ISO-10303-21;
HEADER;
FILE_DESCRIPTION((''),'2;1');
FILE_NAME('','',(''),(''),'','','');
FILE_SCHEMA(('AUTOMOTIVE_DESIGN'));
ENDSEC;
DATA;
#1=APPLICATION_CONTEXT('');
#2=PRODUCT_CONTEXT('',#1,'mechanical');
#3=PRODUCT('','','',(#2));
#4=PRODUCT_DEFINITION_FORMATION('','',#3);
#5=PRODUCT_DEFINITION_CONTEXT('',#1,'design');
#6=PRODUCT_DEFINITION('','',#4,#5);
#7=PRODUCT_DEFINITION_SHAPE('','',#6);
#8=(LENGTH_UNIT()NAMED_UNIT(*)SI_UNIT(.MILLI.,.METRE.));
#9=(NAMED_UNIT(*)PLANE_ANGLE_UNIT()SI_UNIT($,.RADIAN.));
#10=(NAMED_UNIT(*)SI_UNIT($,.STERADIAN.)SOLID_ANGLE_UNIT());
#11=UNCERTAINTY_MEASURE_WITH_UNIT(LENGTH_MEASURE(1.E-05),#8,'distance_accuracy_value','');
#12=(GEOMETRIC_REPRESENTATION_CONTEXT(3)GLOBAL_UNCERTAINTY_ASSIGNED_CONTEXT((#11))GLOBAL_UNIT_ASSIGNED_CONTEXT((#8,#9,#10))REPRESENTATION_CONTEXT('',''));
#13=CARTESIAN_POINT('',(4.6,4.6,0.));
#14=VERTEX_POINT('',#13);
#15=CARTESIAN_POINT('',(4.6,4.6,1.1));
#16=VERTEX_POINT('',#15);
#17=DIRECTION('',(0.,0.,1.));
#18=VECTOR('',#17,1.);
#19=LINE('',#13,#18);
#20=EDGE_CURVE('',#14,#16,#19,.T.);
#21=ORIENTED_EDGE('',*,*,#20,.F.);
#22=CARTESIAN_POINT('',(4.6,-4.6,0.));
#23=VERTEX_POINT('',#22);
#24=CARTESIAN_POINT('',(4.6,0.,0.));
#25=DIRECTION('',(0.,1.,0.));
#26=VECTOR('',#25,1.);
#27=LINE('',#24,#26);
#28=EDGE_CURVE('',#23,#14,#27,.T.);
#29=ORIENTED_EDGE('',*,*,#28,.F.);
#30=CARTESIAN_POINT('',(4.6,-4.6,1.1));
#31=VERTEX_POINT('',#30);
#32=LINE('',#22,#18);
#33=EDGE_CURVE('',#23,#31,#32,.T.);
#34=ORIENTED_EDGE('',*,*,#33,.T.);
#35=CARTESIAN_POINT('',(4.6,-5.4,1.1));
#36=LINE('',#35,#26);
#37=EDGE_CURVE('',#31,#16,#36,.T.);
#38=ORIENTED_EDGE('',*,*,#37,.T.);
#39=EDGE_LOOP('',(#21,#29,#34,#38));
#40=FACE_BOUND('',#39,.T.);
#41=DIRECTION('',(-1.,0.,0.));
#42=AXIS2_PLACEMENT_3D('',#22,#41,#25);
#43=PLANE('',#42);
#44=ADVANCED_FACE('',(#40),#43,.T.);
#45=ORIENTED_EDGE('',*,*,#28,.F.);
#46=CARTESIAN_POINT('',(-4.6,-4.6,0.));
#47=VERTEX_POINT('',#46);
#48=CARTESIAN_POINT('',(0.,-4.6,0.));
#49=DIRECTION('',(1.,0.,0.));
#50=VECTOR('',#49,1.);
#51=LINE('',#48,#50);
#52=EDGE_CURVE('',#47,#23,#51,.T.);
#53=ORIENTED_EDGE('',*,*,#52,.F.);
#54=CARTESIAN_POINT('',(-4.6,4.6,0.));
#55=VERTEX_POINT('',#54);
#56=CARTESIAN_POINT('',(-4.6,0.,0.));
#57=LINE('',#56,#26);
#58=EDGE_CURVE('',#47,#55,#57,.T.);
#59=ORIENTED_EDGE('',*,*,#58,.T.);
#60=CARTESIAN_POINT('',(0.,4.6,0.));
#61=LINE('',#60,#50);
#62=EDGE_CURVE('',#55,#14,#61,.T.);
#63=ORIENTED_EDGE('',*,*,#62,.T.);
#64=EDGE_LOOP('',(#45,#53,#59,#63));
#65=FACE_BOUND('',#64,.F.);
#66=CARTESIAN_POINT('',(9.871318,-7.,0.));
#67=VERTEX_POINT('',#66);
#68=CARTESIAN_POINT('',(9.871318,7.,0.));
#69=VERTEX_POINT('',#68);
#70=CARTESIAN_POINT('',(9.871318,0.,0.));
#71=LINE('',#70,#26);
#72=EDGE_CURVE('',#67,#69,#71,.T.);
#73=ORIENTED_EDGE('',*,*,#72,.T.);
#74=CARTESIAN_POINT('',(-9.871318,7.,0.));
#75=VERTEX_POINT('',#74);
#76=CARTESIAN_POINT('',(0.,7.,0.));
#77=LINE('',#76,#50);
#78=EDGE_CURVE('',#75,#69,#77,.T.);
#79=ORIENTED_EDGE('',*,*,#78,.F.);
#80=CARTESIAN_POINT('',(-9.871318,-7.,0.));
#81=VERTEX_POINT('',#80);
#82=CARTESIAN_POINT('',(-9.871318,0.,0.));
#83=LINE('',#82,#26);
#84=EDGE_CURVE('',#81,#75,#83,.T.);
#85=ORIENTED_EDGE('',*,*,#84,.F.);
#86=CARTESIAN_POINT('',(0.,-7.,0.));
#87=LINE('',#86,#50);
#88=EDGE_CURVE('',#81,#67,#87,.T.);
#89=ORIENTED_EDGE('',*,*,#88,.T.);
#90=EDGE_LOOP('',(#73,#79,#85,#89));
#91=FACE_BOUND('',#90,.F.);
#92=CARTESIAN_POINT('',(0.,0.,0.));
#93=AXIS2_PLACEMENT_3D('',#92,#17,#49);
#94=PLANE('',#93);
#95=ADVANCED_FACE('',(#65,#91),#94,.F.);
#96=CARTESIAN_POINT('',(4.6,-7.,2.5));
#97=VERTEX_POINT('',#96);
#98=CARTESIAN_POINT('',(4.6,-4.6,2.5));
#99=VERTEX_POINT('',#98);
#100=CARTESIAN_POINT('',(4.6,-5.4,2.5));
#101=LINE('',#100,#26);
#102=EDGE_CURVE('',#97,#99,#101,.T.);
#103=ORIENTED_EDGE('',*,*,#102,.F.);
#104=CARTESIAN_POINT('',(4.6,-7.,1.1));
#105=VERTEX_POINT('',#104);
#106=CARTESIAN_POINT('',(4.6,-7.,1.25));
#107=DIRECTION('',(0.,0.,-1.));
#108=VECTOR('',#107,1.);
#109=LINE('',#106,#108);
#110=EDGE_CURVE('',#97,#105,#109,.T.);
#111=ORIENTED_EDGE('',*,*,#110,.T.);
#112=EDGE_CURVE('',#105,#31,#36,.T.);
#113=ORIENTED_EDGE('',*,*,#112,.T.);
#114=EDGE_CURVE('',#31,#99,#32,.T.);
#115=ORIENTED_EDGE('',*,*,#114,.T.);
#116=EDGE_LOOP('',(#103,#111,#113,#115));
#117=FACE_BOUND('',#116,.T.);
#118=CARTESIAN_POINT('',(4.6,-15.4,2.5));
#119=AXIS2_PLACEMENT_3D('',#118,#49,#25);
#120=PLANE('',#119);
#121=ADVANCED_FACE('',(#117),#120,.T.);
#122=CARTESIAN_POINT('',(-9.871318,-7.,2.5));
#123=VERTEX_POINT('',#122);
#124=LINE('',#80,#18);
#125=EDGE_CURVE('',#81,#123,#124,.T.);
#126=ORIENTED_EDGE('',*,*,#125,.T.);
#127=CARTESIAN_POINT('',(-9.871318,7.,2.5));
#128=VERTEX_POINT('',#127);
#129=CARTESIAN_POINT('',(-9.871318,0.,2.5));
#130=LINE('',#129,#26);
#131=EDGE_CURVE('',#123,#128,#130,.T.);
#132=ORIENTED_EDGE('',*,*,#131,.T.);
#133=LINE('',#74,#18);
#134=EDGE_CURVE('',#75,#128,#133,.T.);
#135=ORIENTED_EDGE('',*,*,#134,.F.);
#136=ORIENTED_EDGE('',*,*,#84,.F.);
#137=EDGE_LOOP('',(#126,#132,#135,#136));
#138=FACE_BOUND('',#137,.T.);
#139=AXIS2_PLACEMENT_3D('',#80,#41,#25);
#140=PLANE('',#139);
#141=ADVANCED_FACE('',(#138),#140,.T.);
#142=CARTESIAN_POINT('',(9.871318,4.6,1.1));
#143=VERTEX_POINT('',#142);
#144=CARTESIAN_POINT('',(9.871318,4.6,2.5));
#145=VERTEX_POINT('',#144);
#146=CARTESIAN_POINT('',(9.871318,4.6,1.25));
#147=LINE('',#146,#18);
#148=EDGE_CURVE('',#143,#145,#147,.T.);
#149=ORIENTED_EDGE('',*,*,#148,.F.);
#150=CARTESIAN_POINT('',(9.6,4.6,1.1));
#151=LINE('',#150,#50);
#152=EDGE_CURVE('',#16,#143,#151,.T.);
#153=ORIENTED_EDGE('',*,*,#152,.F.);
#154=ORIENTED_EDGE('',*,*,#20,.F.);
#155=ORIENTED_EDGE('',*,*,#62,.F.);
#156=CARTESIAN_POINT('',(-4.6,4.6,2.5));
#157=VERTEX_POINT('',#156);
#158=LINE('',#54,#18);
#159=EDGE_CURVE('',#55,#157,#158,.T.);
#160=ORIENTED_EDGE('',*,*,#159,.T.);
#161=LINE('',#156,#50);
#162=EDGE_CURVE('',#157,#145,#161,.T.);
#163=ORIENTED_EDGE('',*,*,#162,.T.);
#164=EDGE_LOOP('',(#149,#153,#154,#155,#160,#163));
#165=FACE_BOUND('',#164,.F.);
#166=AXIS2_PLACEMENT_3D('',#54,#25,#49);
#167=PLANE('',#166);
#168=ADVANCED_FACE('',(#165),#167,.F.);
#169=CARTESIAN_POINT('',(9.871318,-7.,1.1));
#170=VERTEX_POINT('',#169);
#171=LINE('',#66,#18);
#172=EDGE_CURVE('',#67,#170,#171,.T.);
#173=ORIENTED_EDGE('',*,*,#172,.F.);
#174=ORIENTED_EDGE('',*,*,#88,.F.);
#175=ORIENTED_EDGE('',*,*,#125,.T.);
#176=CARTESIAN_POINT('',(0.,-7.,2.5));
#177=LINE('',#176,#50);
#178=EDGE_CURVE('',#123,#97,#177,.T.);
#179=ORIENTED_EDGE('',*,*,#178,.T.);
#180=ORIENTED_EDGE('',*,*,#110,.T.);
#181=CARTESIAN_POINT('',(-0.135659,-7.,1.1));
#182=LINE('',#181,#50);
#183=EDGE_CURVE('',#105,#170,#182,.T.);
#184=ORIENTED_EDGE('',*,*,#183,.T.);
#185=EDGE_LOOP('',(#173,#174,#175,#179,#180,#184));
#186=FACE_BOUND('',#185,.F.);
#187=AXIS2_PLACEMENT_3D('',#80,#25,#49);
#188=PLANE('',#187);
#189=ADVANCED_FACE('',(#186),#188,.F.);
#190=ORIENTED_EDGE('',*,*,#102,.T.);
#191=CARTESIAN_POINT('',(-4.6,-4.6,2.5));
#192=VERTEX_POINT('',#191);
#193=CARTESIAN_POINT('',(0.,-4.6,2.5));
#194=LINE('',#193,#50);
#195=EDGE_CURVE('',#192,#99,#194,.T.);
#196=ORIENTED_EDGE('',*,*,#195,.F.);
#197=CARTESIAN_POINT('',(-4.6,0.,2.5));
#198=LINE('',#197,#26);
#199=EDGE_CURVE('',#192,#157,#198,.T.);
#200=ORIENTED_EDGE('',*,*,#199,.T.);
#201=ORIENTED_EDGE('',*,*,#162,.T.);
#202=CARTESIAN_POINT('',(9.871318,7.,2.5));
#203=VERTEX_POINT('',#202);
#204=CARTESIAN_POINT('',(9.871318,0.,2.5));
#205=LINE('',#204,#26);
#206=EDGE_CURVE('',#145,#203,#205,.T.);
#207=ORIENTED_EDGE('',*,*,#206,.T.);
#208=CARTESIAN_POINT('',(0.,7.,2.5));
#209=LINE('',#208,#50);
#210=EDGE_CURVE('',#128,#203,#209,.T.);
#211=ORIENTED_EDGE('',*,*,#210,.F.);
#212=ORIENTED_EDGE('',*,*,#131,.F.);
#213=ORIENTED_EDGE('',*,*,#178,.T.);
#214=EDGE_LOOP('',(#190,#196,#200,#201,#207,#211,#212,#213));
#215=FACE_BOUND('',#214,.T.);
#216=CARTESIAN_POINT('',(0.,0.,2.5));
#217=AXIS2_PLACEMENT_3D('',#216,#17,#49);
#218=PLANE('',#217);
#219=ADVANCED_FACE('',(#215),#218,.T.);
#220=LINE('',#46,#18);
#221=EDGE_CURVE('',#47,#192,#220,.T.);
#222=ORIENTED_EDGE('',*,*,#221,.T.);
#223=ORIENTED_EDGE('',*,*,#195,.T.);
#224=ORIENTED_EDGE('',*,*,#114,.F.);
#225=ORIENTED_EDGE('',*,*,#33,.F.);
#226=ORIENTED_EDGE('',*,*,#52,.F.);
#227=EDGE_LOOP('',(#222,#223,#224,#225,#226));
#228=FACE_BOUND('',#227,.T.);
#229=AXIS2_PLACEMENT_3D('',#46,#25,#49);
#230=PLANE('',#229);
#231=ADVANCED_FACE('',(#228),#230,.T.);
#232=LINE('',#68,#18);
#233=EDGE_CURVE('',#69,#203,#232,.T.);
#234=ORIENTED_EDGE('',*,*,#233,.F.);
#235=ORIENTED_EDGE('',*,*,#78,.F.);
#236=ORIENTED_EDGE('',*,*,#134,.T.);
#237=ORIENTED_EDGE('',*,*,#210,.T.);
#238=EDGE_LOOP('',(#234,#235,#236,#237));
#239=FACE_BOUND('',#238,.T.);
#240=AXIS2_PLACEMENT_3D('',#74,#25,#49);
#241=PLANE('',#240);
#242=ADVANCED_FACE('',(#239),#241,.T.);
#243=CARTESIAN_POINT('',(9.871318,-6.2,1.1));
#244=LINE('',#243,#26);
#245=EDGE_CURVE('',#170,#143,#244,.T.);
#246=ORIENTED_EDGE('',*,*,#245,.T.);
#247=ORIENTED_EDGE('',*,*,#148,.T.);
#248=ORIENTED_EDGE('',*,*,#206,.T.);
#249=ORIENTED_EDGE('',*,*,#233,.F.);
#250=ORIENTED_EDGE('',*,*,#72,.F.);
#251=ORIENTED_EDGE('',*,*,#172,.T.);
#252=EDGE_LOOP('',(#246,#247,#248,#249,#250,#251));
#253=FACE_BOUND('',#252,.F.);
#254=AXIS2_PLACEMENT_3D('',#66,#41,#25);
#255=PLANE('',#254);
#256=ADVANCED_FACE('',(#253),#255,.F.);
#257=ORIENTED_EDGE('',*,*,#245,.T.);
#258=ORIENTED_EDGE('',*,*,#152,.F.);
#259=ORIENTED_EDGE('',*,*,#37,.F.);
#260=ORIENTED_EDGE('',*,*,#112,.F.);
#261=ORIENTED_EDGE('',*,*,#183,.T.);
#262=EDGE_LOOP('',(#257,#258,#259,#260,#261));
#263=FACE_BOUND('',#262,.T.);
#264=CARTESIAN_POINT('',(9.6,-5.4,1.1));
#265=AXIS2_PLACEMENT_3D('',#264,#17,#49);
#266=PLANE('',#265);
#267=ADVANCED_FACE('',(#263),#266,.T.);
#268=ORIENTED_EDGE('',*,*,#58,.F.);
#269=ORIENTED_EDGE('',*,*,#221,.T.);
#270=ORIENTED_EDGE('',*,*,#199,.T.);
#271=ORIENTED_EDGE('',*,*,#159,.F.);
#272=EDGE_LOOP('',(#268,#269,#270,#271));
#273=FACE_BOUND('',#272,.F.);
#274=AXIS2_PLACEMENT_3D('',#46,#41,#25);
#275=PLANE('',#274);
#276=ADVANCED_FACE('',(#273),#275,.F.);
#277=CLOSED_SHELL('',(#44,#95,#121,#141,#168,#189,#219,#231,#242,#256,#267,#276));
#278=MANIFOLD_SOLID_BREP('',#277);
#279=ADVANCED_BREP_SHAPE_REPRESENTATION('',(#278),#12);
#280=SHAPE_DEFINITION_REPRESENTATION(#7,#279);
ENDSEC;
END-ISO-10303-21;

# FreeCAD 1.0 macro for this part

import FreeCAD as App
import Part
import Sketcher
from FreeCAD import Vector


def add_polygon(sketch, points):
    """Adds a closed chain of lines whose ends are joined by coincident constraints."""
    first, n = sketch.GeometryCount, len(points)
    for a, b in zip(points, points[1:] + points[:1]):
        sketch.addGeometry(Part.LineSegment(App.Vector(*a, 0), App.Vector(*b, 0)), False)
    for i in range(n):
        sketch.addConstraint(Sketcher.Constraint("Coincident", first + i, 2, first + (i + 1) % n, 1))

doc = App.newDocument("Part")
body = doc.addObject("PartDesign::Body", "Body")

# Sketch on XY plane
sketch1 = doc.addObject("Sketcher::SketchObject", "Sketch")
body.addObject(sketch1)
sketch1.AttachmentSupport = (doc.XY_Plane, [""])
sketch1.MapMode = "FlatFace"
add_polygon(sketch1, [(-10, 7), (-10, -7), (10, -7), (10, 7)])  # lines 0-3
add_polygon(sketch1, [(5, -5), (-5, -5), (-5, 5), (5, 5)])  # lines 4-7
sketch1.addConstraint([
    Sketcher.Constraint("Vertical", 0),
    Sketcher.Constraint("Horizontal", 1),
    Sketcher.Constraint("Vertical", 2),
    Sketcher.Constraint("Horizontal", 3),
    Sketcher.Constraint("Horizontal", 4),
    Sketcher.Constraint("Vertical", 5),
    Sketcher.Constraint("Horizontal", 6),
    Sketcher.Constraint("Vertical", 7),
    Sketcher.Constraint("Symmetric", 0, 2, 2, 2, -1, 1),
    Sketcher.Constraint("Symmetric", 4, 2, 6, 2, -1, 1),
    Sketcher.Constraint("Equal", 6, 5),
    Sketcher.Constraint("DistanceY", 0, 2, 0, 1, 14.0),
    Sketcher.Constraint("DistanceX", 4, 2, 4, 1, 9.2),
    Sketcher.Constraint("DistanceX", 1, 1, 1, 2, 19.742636),
])
pad1 = doc.addObject("PartDesign::Pad", "Pad")
body.addObject(pad1)
pad1.Profile = sketch1
pad1.Length = 2.5

# Sketch on XY plane
sketch2 = doc.addObject("Sketcher::SketchObject", "Sketch001")
body.addObject(sketch2)
sketch2.AttachmentSupport = (doc.XY_Plane, [""])
sketch2.MapMode = "FlatFace"
sketch2.AttachmentOffset = App.Placement(Vector(0, 0, 2.5), App.Rotation())
add_polygon(sketch2, [(5, 5), (5, -15), (15, -15), (15, 5)])  # lines 0-3
sketch2.addConstraint([
    Sketcher.Constraint("Vertical", 0),
    Sketcher.Constraint("Horizontal", 1),
    Sketcher.Constraint("Vertical", 2),
    Sketcher.Constraint("Horizontal", 3),
    Sketcher.Constraint("DistanceX", 1, 1, 1, 2, 10.0),
    Sketcher.Constraint("DistanceY", 0, 2, 0, 1, 20.0),
    Sketcher.Constraint("DistanceX", -1, 1, 0, 2, 4.6),
    Sketcher.Constraint("DistanceY", 0, 2, -1, 1, 15.4),
])
pocket1 = doc.addObject("PartDesign::Pocket", "Pocket")
body.addObject(pocket1)
pocket1.Profile = sketch2
pocket1.Length = 1.4

doc.recompute()
